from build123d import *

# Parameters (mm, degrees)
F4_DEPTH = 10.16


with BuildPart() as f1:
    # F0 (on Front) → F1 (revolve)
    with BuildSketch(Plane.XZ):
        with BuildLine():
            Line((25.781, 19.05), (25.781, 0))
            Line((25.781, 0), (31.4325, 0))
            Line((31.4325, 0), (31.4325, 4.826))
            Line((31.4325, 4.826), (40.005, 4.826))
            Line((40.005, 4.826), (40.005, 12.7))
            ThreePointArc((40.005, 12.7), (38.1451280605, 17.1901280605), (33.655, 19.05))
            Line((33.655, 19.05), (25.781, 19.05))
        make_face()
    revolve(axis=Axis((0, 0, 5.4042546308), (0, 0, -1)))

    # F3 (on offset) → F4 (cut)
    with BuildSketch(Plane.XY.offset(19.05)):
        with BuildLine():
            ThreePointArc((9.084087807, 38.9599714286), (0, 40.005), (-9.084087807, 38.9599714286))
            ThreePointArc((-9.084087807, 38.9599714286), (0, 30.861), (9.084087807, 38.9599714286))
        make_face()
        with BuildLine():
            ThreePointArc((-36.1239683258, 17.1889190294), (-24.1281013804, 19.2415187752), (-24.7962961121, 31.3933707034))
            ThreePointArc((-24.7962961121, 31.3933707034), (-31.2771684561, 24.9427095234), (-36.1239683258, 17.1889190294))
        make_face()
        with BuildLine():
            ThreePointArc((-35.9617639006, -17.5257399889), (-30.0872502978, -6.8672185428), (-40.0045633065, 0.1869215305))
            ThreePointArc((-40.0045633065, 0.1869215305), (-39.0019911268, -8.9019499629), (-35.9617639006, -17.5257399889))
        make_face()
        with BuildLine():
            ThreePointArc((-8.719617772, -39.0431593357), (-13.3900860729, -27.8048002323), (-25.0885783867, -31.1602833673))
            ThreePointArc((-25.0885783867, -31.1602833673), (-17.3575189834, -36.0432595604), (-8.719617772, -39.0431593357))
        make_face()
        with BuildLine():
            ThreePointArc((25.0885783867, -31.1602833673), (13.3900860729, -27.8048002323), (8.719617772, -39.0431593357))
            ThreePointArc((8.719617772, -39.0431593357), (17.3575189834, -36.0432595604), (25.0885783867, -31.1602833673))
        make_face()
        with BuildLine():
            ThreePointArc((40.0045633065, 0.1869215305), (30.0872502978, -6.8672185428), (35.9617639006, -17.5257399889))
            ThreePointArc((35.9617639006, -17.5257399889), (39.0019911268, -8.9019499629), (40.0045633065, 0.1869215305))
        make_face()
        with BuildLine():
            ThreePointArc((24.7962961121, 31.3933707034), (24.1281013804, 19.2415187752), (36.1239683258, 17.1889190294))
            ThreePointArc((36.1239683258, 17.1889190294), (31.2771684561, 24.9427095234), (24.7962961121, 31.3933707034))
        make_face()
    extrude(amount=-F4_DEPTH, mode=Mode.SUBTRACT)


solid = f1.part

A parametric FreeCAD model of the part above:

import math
import FreeCAD as App
import Part
import Sketcher
Q = App.Units.Quantity

doc = App.newDocument("Part")
body = doc.addObject("PartDesign::Body", "Body")

sketch1 = body.newObject("Sketcher::SketchObject", "Sketch")
sketch1.AttachmentSupport = (doc.getObject("XZ_Plane"), [""])
sketch1.MapMode = "FlatFace"
sketch1.addGeometry(Part.LineSegment(App.Vector(25.781, 19.05, 0), App.Vector(25.781, 0, 0)), False)
sketch1.addGeometry(Part.LineSegment(App.Vector(25.781, 0, 0), App.Vector(31.4325, 0, 0)), False)
sketch1.addGeometry(Part.LineSegment(App.Vector(31.4325, 0, 0), App.Vector(31.4325, 4.826, 0)), False)
sketch1.addGeometry(Part.LineSegment(App.Vector(31.4325, 4.826, 0), App.Vector(40.005, 4.826, 0)), False)
sketch1.addGeometry(Part.LineSegment(App.Vector(40.005, 4.826, 0), App.Vector(40.005, 12.7, 0)), False)
sketch1.addGeometry(Part.ArcOfCircle(Part.Circle(App.Vector(33.655, 12.7, 0), App.Vector(0, 0, 1), 6.35), math.radians(0), math.radians(90)), False)
sketch1.addGeometry(Part.LineSegment(App.Vector(33.655, 19.05, 0), App.Vector(25.781, 19.05, 0)), False)
sketch1.addConstraint(Sketcher.Constraint("Coincident", 0, 2, 1, 1))
sketch1.addConstraint(Sketcher.Constraint("Coincident", 1, 2, 2, 1))
sketch1.addConstraint(Sketcher.Constraint("Coincident", 2, 2, 3, 1))
sketch1.addConstraint(Sketcher.Constraint("Coincident", 3, 2, 4, 1))
sketch1.addConstraint(Sketcher.Constraint("Tangent", 4, 2, 5, 1))
sketch1.addConstraint(Sketcher.Constraint("Tangent", 5, 2, 6, 1))
sketch1.addConstraint(Sketcher.Constraint("Coincident", 6, 2, 0, 1))
sketch1.addConstraint(Sketcher.Constraint("Vertical", 0))
sketch1.addConstraint(Sketcher.Constraint("Horizontal", 1))
sketch1.addConstraint(Sketcher.Constraint("Vertical", 2))
sketch1.addConstraint(Sketcher.Constraint("Horizontal", 3))
sketch1.addConstraint(Sketcher.Constraint("Vertical", 4))
sketch1.addConstraint(Sketcher.Constraint("Horizontal", 6))
sketch1.addConstraint(Sketcher.Constraint("PointOnObject", 0, 2, -1))
sketch1.addConstraint(Sketcher.Constraint("Equal", 6, 4))
sketch1.addConstraint(Sketcher.Constraint("Radius", 5, Q("0.25 in")))
sketch1.addConstraint(Sketcher.Constraint("DistanceX", 6, 2, 6, 1, Q("0.31 in")))
sketch1.addConstraint(Sketcher.Constraint("DistanceY", 0, 2, 0, 1, Q("0.75 in")))
sketch1.addConstraint(Sketcher.Constraint("DistanceX", 1, 1, 1, 2, Q("0.2225 in")))
sketch1.addConstraint(Sketcher.Constraint("DistanceX", -1, 1, 5, 3, Q("1.325 in")))
revolution = body.newObject("PartDesign::Revolution", "Revolution")
revolution.Profile = sketch1
revolution.ReferenceAxis = (sketch1, ["V_Axis"])
revolution.Angle = 360

sketch2 = body.newObject("Sketcher::SketchObject", "Sketch001")
sketch2.AttachmentSupport = (doc.getObject("XY_Plane"), [""])
sketch2.MapMode = "FlatFace"
sketch2.AttachmentOffset = App.Placement(App.Vector(0, 0, 0.75 * 25.4), App.Rotation())
sketch2.addGeometry(Part.ArcOfCircle(Part.Circle(App.Vector(0, 0, 0), App.Vector(0, 0, 1), 40.005), math.radians(76.875144), math.radians(103.124856)), False)
sketch2.addGeometry(Part.ArcOfCircle(Part.Circle(App.Vector(0, 40.005, 0), App.Vector(0, 0, 1), 9.144), math.radians(-173.437572), math.radians(-6.562428)), False)
sketch2.addGeometry(Part.ArcOfCircle(Part.Circle(App.Vector(-31.277168, 24.94271, 0), App.Vector(0, 0, 1), 9.144), math.radians(-122.009001), math.radians(44.866144)), False)
sketch2.addGeometry(Part.ArcOfCircle(Part.Circle(App.Vector(0, 0, 0), App.Vector(0, 0, 1), 40.005), math.radians(128.303716), math.radians(154.553427)), False)
sketch2.addGeometry(Part.ArcOfCircle(Part.Circle(App.Vector(-39.001991, -8.90195, 0), App.Vector(0, 0, 1), 9.144), math.radians(-70.580429), math.radians(96.294715)), False)
sketch2.addGeometry(Part.ArcOfCircle(Part.Circle(App.Vector(0, 0, 0), App.Vector(0, 0, 1), 40.005), math.radians(179.732287), math.radians(205.981999)), False)
sketch2.addGeometry(Part.ArcOfCircle(Part.Circle(App.Vector(-17.357519, -36.04326, 0), App.Vector(0, 0, 1), 9.144), math.radians(-19.151858), math.radians(147.723286)), False)
sketch2.addGeometry(Part.ArcOfCircle(Part.Circle(App.Vector(0, 0, 0), App.Vector(0, 0, 1), 40.005), math.radians(-128.839141), math.radians(-102.58943)), False)
sketch2.addGeometry(Part.ArcOfCircle(Part.Circle(App.Vector(17.357519, -36.04326, 0), App.Vector(0, 0, 1), 9.144), math.radians(32.276714), math.radians(199.151858)), False)
sketch2.addGeometry(Part.ArcOfCircle(Part.Circle(App.Vector(0, 0, 0), App.Vector(0, 0, 1), 40.005), math.radians(-77.41057), math.radians(-51.160859)), False)
sketch2.addGeometry(Part.ArcOfCircle(Part.Circle(App.Vector(39.001991, -8.90195, 0), App.Vector(0, 0, 1), 9.144), math.radians(83.705285), math.radians(250.580429)), False)
sketch2.addGeometry(Part.ArcOfCircle(Part.Circle(App.Vector(0, 0, 0), App.Vector(0, 0, 1), 40.005), math.radians(-25.981999), math.radians(0.267713)), False)
sketch2.addGeometry(Part.ArcOfCircle(Part.Circle(App.Vector(31.277168, 24.94271, 0), App.Vector(0, 0, 1), 9.144), math.radians(135.133856), math.radians(302.009001)), False)
sketch2.addGeometry(Part.ArcOfCircle(Part.Circle(App.Vector(0, 0, 0), App.Vector(0, 0, 1), 40.005), math.radians(25.446573), math.radians(51.696284)), False)
sketch2.addConstraint(Sketcher.Constraint("Coincident", 0, 1, 1, 2))
sketch2.addConstraint(Sketcher.Constraint("Coincident", 1, 1, 0, 2))
sketch2.addConstraint(Sketcher.Constraint("Coincident", 2, 1, 3, 2))
sketch2.addConstraint(Sketcher.Constraint("Coincident", 3, 1, 2, 2))
sketch2.addConstraint(Sketcher.Constraint("Coincident", 4, 1, 5, 2))
sketch2.addConstraint(Sketcher.Constraint("Coincident", 5, 1, 4, 2))
sketch2.addConstraint(Sketcher.Constraint("Coincident", 6, 1, 7, 2))
sketch2.addConstraint(Sketcher.Constraint("Coincident", 7, 1, 6, 2))
sketch2.addConstraint(Sketcher.Constraint("Coincident", 8, 1, 9, 2))
sketch2.addConstraint(Sketcher.Constraint("Coincident", 9, 1, 8, 2))
sketch2.addConstraint(Sketcher.Constraint("Coincident", 10, 1, 11, 2))
sketch2.addConstraint(Sketcher.Constraint("Coincident", 11, 1, 10, 2))
sketch2.addConstraint(Sketcher.Constraint("Coincident", 12, 1, 13, 2))
sketch2.addConstraint(Sketcher.Constraint("Coincident", 13, 1, 12, 2))
sketch2.addConstraint(Sketcher.Constraint("Coincident", 0, 3, -1, 1))
sketch2.addConstraint(Sketcher.Constraint("Coincident", 3, 3, -1, 1))
sketch2.addConstraint(Sketcher.Constraint("Coincident", 5, 3, -1, 1))
sketch2.addConstraint(Sketcher.Constraint("Coincident", 7, 3, -1, 1))
sketch2.addConstraint(Sketcher.Constraint("Coincident", 9, 3, -1, 1))
sketch2.addConstraint(Sketcher.Constraint("Coincident", 11, 3, -1, 1))
sketch2.addConstraint(Sketcher.Constraint("Coincident", 13, 3, -1, 1))
sketch2.addConstraint(Sketcher.Constraint("Equal", 1, 2))
sketch2.addConstraint(Sketcher.Constraint("Equal", 0, 3))
sketch2.addConstraint(Sketcher.Constraint("Equal", 2, 4))
sketch2.addConstraint(Sketcher.Constraint("Equal", 3, 5))
sketch2.addConstraint(Sketcher.Constraint("Equal", 4, 6))
sketch2.addConstraint(Sketcher.Constraint("Equal", 5, 7))
sketch2.addConstraint(Sketcher.Constraint("Equal", 6, 8))
sketch2.addConstraint(Sketcher.Constraint("Equal", 7, 9))
sketch2.addConstraint(Sketcher.Constraint("Equal", 8, 10))
sketch2.addConstraint(Sketcher.Constraint("Equal", 9, 11))
sketch2.addConstraint(Sketcher.Constraint("Equal", 10, 12))
sketch2.addConstraint(Sketcher.Constraint("Equal", 11, 13))
sketch2.addConstraint(Sketcher.Constraint("Symmetric", 6, 3, 8, 3, -2))
sketch2.addConstraint(Sketcher.Constraint("Symmetric", 4, 3, 10, 3, -2))
sketch2.addConstraint(Sketcher.Constraint("Symmetric", 2, 3, 12, 3, -2))
sketch2.addConstraint(Sketcher.Constraint("PointOnObject", 1, 3, -2))
sketch2.addConstraint(Sketcher.Constraint("Radius", 1, Q("0.36 in")))
sketch2.addConstraint(Sketcher.Constraint("Radius", 0, Q("1.575 in")))
sketch2.addConstraint(Sketcher.Constraint("DistanceY", -1, 1, 1, 3, Q("1.575 in")))
sketch2.addConstraint(Sketcher.Constraint("DistanceX", 2, 1, 2, 3, Q("4.8468 mm")))
sketch2.addConstraint(Sketcher.Constraint("DistanceY", 3, 1, 1, 1, Q("7.566601 mm")))
sketch2.addConstraint(Sketcher.Constraint("DistanceX", 5, 1, 4, 1, Q("4.042799 mm")))
sketch2.addConstraint(Sketcher.Constraint("DistanceX", 6, 3, 6, 1, Q("8.637901 mm")))
sketch2.addConstraint(Sketcher.Constraint("DistanceX", 4, 3, -1, 1, Q("39.001991 mm")))
sketch2.addConstraint(Sketcher.Constraint("DistanceX", 6, 3, -1, 1, Q("17.357519 mm")))
pocket1 = body.newObject("PartDesign::Pocket", "Pocket")
pocket1.Profile = sketch2
pocket1.Length = Q("0.4 in")

doc.recompute()
